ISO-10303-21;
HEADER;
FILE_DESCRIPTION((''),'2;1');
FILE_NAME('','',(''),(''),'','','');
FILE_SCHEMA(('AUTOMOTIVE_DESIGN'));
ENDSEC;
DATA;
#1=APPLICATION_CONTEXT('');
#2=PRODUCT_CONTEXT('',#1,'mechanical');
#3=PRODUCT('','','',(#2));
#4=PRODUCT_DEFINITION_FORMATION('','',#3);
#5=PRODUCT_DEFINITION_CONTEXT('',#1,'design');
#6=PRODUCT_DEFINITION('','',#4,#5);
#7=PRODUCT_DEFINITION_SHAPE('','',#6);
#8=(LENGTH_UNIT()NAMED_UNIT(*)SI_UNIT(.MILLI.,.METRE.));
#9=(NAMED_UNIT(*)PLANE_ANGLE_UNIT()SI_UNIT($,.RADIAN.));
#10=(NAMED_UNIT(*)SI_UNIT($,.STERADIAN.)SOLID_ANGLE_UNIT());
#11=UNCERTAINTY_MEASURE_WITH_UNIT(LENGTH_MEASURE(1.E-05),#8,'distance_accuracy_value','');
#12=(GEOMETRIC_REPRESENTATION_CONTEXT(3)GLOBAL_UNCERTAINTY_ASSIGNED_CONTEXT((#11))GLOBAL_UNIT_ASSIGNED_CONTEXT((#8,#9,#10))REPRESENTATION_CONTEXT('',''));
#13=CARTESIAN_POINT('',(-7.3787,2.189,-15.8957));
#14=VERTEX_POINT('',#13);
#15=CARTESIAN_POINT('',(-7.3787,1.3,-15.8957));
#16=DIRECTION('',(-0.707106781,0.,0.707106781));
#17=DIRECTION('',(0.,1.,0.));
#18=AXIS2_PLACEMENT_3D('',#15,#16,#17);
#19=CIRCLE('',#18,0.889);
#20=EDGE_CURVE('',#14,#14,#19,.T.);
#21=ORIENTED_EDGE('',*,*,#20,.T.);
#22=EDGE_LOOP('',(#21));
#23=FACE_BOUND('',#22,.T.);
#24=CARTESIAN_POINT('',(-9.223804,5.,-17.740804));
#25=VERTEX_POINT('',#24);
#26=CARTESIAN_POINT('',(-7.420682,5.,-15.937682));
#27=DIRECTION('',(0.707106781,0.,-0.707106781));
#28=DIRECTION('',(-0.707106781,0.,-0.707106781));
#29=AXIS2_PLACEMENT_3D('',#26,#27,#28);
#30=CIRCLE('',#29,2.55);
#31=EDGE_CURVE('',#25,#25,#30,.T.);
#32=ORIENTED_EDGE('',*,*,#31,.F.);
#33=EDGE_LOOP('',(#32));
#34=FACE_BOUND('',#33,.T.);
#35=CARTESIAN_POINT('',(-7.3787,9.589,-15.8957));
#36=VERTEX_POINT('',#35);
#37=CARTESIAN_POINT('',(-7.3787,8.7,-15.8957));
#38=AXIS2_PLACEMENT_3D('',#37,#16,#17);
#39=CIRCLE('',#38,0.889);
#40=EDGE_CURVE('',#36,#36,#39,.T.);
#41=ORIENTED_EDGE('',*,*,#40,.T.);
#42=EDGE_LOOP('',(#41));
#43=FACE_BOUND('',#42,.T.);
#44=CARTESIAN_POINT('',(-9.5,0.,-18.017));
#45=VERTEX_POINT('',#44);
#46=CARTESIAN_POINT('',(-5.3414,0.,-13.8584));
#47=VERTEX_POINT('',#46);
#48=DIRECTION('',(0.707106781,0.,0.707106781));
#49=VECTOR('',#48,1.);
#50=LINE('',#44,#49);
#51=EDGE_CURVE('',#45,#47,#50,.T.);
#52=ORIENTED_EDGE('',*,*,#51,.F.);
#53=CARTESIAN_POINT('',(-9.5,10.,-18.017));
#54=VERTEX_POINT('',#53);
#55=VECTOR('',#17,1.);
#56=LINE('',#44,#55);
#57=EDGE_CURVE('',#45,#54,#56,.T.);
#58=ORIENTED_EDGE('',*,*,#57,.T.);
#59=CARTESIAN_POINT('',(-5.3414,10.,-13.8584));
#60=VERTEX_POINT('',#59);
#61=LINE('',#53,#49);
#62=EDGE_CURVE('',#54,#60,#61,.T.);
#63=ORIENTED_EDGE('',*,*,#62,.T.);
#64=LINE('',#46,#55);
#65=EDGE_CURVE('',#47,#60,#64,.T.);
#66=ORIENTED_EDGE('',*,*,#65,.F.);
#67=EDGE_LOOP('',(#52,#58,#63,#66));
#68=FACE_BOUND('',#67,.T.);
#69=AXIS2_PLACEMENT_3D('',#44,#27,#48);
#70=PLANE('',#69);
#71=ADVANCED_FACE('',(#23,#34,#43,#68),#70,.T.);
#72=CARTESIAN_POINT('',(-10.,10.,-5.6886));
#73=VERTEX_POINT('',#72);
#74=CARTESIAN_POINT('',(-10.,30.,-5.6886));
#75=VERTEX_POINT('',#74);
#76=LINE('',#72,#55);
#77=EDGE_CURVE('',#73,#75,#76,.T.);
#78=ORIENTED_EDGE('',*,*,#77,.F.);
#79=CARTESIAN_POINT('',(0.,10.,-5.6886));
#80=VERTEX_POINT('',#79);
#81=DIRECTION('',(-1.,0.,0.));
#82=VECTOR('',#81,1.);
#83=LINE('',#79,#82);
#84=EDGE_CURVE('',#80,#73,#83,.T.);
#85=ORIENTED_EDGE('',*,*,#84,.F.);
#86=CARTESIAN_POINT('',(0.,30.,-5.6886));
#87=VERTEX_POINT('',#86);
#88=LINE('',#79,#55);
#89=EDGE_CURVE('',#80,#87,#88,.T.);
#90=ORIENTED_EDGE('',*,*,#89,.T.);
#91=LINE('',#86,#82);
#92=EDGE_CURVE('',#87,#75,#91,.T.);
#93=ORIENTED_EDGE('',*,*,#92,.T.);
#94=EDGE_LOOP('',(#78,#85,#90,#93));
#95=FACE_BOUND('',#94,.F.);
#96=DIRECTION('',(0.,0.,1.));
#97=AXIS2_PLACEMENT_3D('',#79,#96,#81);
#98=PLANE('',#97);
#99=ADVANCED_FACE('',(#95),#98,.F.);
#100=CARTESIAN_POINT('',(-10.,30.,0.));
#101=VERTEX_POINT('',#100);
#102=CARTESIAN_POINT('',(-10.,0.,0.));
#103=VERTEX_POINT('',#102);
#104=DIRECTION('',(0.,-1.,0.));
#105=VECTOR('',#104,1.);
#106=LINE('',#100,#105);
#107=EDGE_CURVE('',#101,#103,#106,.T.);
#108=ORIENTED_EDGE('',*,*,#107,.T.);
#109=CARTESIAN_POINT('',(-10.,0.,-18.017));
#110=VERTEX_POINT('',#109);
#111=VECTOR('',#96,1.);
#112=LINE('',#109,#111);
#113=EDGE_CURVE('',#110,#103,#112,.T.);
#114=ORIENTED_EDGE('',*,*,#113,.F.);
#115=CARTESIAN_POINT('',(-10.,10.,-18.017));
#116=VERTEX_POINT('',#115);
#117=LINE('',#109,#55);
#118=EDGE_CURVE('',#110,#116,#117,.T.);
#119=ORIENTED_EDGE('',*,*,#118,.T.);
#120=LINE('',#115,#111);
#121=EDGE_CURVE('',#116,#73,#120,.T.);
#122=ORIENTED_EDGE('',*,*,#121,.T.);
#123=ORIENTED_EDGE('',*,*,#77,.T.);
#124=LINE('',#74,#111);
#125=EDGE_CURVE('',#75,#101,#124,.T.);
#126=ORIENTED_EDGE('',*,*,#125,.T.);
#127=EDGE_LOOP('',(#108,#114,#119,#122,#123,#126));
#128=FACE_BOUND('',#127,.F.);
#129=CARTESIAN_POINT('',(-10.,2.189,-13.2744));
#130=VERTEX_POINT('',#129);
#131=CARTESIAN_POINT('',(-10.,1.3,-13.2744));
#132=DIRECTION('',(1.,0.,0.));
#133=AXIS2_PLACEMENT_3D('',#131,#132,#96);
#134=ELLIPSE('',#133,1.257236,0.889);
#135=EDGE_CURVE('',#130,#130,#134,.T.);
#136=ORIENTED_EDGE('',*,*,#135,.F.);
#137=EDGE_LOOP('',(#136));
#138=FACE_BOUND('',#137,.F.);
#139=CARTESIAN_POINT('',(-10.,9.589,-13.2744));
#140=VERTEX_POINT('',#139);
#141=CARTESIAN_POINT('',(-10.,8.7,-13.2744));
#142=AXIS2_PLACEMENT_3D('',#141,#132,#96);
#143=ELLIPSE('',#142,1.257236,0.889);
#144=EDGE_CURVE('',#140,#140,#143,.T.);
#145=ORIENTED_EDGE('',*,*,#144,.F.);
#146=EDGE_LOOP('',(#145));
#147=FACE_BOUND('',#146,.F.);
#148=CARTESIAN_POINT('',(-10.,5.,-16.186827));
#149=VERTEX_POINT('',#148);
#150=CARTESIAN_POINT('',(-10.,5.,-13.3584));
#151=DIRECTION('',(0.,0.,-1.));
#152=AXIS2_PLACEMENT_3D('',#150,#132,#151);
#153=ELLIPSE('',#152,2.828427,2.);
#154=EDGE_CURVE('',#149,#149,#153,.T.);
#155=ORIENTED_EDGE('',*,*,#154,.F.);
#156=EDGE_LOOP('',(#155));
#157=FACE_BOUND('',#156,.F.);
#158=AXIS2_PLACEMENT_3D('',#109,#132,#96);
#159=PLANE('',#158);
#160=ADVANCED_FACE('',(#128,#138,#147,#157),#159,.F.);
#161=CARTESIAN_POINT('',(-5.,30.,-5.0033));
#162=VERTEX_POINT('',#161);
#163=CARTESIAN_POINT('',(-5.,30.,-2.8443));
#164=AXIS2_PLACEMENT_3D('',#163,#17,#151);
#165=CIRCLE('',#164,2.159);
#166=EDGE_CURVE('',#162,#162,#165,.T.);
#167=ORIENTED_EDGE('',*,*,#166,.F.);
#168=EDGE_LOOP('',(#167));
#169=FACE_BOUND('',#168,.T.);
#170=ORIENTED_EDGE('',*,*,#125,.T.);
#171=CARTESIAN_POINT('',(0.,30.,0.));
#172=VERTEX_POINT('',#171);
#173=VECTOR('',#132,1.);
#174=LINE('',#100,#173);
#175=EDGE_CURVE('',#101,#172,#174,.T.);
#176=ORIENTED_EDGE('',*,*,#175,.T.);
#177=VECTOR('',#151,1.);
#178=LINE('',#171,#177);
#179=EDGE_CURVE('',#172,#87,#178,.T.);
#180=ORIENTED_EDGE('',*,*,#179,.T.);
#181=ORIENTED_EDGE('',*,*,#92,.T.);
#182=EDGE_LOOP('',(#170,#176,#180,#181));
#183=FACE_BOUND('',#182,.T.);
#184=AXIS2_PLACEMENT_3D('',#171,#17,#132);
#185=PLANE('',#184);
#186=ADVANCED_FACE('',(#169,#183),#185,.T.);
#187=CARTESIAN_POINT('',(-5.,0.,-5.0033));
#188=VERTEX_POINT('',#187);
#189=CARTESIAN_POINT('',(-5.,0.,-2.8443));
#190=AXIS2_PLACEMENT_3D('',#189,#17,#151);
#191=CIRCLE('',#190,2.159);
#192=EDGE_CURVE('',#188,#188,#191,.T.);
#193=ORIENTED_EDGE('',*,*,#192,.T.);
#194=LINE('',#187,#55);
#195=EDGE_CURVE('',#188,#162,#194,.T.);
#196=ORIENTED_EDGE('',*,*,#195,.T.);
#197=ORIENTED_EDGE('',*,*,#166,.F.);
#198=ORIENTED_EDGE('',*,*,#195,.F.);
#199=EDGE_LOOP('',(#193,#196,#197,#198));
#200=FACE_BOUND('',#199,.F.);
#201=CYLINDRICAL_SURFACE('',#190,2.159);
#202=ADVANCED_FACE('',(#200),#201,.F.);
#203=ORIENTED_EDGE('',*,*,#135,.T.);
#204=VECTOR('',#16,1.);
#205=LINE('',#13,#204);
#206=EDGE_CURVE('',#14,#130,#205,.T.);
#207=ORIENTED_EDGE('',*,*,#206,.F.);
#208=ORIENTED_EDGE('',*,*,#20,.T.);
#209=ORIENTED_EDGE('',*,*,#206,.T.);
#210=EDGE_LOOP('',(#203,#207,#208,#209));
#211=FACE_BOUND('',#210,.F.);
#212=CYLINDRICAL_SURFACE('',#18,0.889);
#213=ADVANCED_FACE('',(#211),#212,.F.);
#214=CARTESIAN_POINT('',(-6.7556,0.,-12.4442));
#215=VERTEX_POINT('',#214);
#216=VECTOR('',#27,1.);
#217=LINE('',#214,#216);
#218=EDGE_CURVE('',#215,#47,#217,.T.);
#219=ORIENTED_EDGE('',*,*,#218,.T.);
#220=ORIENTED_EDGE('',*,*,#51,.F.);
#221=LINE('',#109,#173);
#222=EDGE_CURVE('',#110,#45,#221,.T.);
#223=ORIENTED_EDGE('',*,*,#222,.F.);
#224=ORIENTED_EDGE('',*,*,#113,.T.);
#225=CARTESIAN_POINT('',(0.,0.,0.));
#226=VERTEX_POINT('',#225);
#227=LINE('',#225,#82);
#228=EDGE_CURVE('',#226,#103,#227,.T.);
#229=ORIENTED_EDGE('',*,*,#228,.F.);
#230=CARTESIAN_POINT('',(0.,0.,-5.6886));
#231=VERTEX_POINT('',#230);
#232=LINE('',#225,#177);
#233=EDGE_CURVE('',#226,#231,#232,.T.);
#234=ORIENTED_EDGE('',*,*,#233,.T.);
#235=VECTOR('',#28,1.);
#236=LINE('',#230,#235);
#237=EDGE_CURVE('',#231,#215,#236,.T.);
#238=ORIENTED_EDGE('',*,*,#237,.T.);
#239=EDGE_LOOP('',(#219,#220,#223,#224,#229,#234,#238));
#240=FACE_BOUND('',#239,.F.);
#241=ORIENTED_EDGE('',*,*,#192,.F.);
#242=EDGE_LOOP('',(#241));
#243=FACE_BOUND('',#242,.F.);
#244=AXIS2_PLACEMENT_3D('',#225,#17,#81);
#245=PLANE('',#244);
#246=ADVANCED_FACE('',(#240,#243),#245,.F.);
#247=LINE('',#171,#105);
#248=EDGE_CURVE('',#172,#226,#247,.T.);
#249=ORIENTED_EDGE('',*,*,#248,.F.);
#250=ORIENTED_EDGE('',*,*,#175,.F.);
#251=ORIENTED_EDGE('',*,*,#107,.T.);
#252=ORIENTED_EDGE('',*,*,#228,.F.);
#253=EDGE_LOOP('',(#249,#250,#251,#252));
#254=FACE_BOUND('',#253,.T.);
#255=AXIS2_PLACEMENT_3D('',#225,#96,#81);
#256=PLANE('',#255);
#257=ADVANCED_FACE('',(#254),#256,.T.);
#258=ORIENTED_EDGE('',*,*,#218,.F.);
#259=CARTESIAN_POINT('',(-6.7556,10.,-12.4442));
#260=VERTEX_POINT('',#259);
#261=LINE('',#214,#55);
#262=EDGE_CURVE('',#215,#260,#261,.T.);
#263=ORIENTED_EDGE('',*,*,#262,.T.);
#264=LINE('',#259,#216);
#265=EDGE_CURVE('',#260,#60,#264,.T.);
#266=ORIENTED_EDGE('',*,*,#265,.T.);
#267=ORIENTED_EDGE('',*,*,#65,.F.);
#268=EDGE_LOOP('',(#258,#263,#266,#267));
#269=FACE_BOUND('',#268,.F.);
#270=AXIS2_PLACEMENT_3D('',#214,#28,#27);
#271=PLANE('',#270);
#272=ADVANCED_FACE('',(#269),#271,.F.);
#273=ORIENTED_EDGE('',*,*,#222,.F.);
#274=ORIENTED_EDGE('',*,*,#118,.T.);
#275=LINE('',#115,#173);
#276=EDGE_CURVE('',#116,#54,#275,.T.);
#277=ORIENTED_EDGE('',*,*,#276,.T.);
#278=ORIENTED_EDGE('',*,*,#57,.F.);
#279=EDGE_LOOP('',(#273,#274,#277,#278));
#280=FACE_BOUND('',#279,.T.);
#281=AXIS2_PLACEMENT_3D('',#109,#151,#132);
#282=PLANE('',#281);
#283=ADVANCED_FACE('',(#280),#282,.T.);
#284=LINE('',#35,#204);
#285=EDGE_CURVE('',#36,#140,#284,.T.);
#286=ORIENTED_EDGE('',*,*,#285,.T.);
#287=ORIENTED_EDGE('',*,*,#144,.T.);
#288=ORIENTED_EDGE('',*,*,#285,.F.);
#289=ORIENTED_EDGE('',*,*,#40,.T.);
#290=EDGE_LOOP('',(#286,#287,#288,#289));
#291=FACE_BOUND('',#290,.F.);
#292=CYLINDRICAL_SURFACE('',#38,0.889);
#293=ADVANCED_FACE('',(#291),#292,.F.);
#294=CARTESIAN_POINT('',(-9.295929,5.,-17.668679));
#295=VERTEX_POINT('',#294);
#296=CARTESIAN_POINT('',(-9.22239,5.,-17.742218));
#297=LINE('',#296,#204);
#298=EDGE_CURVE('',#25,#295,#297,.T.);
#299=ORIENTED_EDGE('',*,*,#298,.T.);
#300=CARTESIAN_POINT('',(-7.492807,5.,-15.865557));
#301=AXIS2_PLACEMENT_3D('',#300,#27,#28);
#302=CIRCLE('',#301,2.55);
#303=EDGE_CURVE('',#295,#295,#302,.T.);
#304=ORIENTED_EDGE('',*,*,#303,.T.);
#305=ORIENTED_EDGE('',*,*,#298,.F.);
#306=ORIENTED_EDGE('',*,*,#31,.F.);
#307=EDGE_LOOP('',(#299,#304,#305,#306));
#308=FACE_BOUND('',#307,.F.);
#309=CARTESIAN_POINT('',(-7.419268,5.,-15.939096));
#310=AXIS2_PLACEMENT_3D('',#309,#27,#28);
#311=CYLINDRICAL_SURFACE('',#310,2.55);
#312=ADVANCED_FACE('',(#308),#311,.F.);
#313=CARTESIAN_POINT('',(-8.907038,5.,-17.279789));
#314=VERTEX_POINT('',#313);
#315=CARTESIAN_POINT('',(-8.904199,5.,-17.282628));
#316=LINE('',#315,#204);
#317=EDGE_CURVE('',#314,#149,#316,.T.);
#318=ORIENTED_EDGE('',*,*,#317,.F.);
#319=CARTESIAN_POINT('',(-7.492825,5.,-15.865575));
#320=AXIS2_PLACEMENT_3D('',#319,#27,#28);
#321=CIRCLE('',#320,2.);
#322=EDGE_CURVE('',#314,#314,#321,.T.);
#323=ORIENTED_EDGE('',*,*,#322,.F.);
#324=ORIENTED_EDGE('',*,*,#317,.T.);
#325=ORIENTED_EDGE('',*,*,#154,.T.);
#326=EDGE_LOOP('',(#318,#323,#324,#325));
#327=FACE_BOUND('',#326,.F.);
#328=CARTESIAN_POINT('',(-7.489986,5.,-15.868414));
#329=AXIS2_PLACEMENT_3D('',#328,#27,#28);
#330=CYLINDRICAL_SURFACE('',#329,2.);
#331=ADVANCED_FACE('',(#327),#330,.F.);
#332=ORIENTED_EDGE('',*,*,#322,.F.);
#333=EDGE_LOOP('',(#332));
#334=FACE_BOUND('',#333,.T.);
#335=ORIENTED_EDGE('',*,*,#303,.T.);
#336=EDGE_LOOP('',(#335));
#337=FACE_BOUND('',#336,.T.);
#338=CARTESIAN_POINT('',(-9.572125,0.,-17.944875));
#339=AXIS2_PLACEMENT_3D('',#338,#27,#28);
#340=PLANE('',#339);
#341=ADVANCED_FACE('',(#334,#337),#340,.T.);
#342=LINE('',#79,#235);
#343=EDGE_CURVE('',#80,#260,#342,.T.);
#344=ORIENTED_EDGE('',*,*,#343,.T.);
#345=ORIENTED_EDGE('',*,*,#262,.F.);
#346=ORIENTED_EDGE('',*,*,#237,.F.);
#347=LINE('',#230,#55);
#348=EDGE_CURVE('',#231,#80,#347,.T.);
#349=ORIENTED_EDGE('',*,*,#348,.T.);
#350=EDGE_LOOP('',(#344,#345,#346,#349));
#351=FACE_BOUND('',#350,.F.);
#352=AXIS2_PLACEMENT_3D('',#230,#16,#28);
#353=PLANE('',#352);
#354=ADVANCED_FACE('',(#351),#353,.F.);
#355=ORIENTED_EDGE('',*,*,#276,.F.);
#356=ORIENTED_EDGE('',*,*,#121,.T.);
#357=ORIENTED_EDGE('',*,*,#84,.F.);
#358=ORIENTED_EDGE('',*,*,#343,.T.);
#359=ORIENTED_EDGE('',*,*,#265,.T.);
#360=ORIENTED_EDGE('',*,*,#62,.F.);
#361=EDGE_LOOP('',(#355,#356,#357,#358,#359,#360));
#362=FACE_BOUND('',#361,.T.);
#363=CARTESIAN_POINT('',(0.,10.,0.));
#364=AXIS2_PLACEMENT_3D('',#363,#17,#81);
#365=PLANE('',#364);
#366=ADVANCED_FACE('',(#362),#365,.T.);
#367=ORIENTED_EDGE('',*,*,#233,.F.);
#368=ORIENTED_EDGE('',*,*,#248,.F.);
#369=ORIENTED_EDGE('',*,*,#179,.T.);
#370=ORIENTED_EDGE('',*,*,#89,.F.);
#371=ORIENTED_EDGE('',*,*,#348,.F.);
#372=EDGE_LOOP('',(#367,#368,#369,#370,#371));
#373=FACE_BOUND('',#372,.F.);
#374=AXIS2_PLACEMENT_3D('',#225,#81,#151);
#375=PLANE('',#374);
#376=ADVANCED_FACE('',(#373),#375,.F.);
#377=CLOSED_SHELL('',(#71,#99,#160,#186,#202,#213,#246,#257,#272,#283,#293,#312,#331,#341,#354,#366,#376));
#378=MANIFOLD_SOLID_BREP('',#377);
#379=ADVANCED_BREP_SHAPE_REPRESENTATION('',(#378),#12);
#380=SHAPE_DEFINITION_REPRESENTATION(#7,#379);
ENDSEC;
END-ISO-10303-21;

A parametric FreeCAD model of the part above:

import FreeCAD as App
import Part
import Sketcher
from FreeCAD import Vector
Q = App.Units.Quantity


def add_polygon(sketch, points):
    """Adds a closed chain of lines whose ends are joined by coincident constraints."""
    first, n = sketch.GeometryCount, len(points)
    for a, b in zip(points, points[1:] + points[:1]):
        sketch.addGeometry(Part.LineSegment(App.Vector(*a, 0), App.Vector(*b, 0)), False)
    for i in range(n):
        sketch.addConstraint(Sketcher.Constraint("Coincident", first + i, 2, first + (i + 1) % n, 1))

doc = App.newDocument("Part")
body = doc.addObject("PartDesign::Body", "Body")

sketch1 = doc.addObject("Sketcher::SketchObject", "Sketch")
body.addObject(sketch1)
sketch1.AttachmentSupport = (doc.XZ_Plane, [""])
sketch1.MapMode = "FlatFace"
add_polygon(sketch1, [(0, 0), (0, -5.7), (-6.8, -12.4), (-5.3, -13.9), (-9.5, -18), (-10, -18), (-10, 0)])
sketch1.addGeometry(Part.Circle(Vector(-5, -2.8, 0), Vector(0, 0, 1), 1.3), False)
sketch1.addConstraint([
    Sketcher.Constraint("Vertical", 0),
    Sketcher.Constraint("Horizontal", 4),
    Sketcher.Constraint("Vertical", 5),
    Sketcher.Constraint("Horizontal", 6),
    Sketcher.Constraint("Coincident", 6, 2, -1, 1),
    Sketcher.Constraint("Perpendicular", 1, 2),
    Sketcher.Constraint("Perpendicular", 2, 3),
    Sketcher.Constraint("DistanceX", 6, 1, 6, 2, Q("10 mm")),
    Sketcher.Constraint("Angle", 1, Q("-135 deg")),
    Sketcher.Constraint("Distance", 2, Q("2 mm")),
    Sketcher.Constraint("Diameter", 7, Q("2.678 mm")),
    Sketcher.Constraint("DistanceX", 4, 2, 4, 1, Q("0.5 mm")),
    Sketcher.Constraint("DistanceX", 7, 3, -1, 1, Q("5 mm")),
    Sketcher.Constraint("DistanceY", 1, 2, 7, 3, Q("9.6 mm")),
    Sketcher.Constraint("DistanceY", 5, 1, 5, 2, Q("18.017 mm")),
    Sketcher.Constraint("Distance", 1, Q("9.5539 mm")),
])
pad1 = doc.addObject("PartDesign::Pad", "Pad")
body.addObject(pad1)
pad1.Profile = sketch1
pad1.Length = 10
pad1.Reversed = True

sketch2 = doc.addObject("Sketcher::SketchObject", "Sketch001")
body.addObject(sketch2)
sketch2.AttachmentSupport = (doc.XZ_Plane, [""])
sketch2.MapMode = "FlatFace"
sketch2.AttachmentOffset = App.Placement(Vector(0, 0, -10), App.Rotation())
add_polygon(sketch2, [(0, 0), (0, -6), (-10, -6), (-10, 0)])
sketch2.addConstraint([
    Sketcher.Constraint("Vertical", 0),
    Sketcher.Constraint("Horizontal", 1),
    Sketcher.Constraint("Vertical", 2),
    Sketcher.Constraint("Horizontal", 3),
    Sketcher.Constraint("Coincident", 3, 2, -1, 1),
    Sketcher.Constraint("DistanceX", 1, 2, 1, 1, Q("10 mm")),
    Sketcher.Constraint("DistanceY", 0, 2, 0, 1, Q("5.6886 mm")),
])
pad2 = doc.addObject("PartDesign::Pad", "Pad001")
body.addObject(pad2)
pad2.Profile = sketch2
pad2.Length = 20
pad2.Reversed = True

sketch3 = doc.addObject("Sketcher::SketchObject", "Sketch002")
body.addObject(sketch3)
sketch3.AttachmentSupport = (doc.XZ_Plane, [""])
sketch3.MapMode = "FlatFace"
sketch3.addGeometry(Part.Circle(Vector(-5, -2.8, 0), Vector(0, 0, 1), 2.2), False)
sketch3.addConstraint([
    Sketcher.Constraint("Diameter", 0, Q("4.318 mm")),
    Sketcher.Constraint("DistanceX", 0, 3, -1, 1, Q("5 mm")),
    Sketcher.Constraint("DistanceY", 0, 3, -1, 1, Q("2.8443 mm")),
])
doc.recompute()
hole = doc.addObject("PartDesign::Hole", "Hole")
body.addObject(hole)
hole.Profile = sketch3
hole.ThreadType = "None"
hole.Diameter = 4.318
hole.DepthType = "Dimension"
hole.Depth = 31
hole.DrillPoint = "Angled"
hole.DrillPointAngle = 118

sketch4 = doc.addObject("Sketcher::SketchObject", "Sketch003")
body.addObject(sketch4)
sketch4.Placement = App.Placement(Vector(-9.5, 0, -18.017), App.Rotation(Vector(-0.707106781, 0, -0.707106781), Vector(0, 0.999999999, 0), Vector(0.707106781, 0, -0.707106781), "ZXY"))
sketch4.addGeometry(Part.Circle(Vector(-2.9, 5, 0), Vector(0, 0, 1), 2.5), False)
sketch4.addConstraint([
    Sketcher.Constraint("Diameter", 0, Q("5.1 mm")),
    Sketcher.Constraint("DistanceY", -1, 1, 0, 3, Q("5 mm")),
    Sketcher.Constraint("DistanceX", 0, 3, -1, 1, Q("2.9406 mm")),
])
pocket1 = doc.addObject("PartDesign::Pocket", "Pocket")
body.addObject(pocket1)
pocket1.Profile = sketch4
pocket1.Length = 0.1

sketch5 = doc.addObject("Sketcher::SketchObject", "Sketch004")
body.addObject(sketch5)
sketch5.Placement = App.Placement(Vector(-7.4914, 5, -15.867), App.Rotation(Vector(-0.707106781, 0, -0.707106781), Vector(0, 0.999999999, 0), Vector(0.707106781, 0, -0.707106781), "ZXY"))
sketch5.addGeometry(Part.Circle(Vector(0, 0, 0), Vector(0, 0, 1), 2), False)
sketch5.addConstraint([
    Sketcher.Constraint("Coincident", 0, 3, -1, 1),
    Sketcher.Constraint("Diameter", 0, Q("4 mm")),
])
pocket2 = doc.addObject("PartDesign::Pocket", "Pocket001")
body.addObject(pocket2)
pocket2.Profile = sketch5
pocket2.Length = 10

sketch6 = doc.addObject("Sketcher::SketchObject", "Sketch005")
body.addObject(sketch6)
sketch6.Placement = App.Placement(Vector(4.2585, 0, -4.2585), App.Rotation(Vector(-0.707106781, 0, -0.707106781), Vector(0, 0.999999999, 0), Vector(0.707106781, 0, -0.707106781), "ZXY"))
sketch6.addGeometry(Part.Circle(Vector(16.5, 1.3, 0), Vector(0, 0, 1), 0.9), False)
sketch6.addConstraint([
    Sketcher.Constraint("Diameter", 0, Q("1.778 mm")),
    Sketcher.Constraint("DistanceY", -1, 1, 0, 3, Q("1.3 mm")),
    Sketcher.Constraint("DistanceX", -1, 1, 0, 3, Q("16.4575 mm")),
])
doc.recompute()
hole2 = doc.addObject("PartDesign::Hole", "Hole001")
body.addObject(hole2)
hole2.Profile = sketch6
hole2.ThreadType = "None"
hole2.Diameter = 1.778
hole2.DepthType = "Dimension"
hole2.Depth = 8
hole2.DrillPoint = "Angled"
hole2.DrillPointAngle = 118

sketch7 = doc.addObject("Sketcher::SketchObject", "Sketch006")
body.addObject(sketch7)
sketch7.Placement = App.Placement(Vector(4.2585, 0, -4.2585), App.Rotation(Vector(-0.707106781, 0, -0.707106781), Vector(0, 0.999999999, 0), Vector(0.707106781, 0, -0.707106781), "ZXY"))
sketch7.addGeometry(Part.Circle(Vector(16.5, 8.7, 0), Vector(0, 0, 1), 0.9), False)
sketch7.addConstraint([
    Sketcher.Constraint("Diameter", 0, Q("1.778 mm")),
    Sketcher.Constraint("DistanceY", -1, 1, 0, 3, Q("8.7 mm")),
    Sketcher.Constraint("DistanceX", -1, 1, 0, 3, Q("16.4575 mm")),
])
doc.recompute()
hole3 = doc.addObject("PartDesign::Hole", "Hole002")
body.addObject(hole3)
hole3.Profile = sketch7
hole3.ThreadType = "None"
hole3.Diameter = 1.778
hole3.DepthType = "Dimension"
hole3.Depth = 8
hole3.DrillPoint = "Angled"
hole3.DrillPointAngle = 118

doc.recompute()
